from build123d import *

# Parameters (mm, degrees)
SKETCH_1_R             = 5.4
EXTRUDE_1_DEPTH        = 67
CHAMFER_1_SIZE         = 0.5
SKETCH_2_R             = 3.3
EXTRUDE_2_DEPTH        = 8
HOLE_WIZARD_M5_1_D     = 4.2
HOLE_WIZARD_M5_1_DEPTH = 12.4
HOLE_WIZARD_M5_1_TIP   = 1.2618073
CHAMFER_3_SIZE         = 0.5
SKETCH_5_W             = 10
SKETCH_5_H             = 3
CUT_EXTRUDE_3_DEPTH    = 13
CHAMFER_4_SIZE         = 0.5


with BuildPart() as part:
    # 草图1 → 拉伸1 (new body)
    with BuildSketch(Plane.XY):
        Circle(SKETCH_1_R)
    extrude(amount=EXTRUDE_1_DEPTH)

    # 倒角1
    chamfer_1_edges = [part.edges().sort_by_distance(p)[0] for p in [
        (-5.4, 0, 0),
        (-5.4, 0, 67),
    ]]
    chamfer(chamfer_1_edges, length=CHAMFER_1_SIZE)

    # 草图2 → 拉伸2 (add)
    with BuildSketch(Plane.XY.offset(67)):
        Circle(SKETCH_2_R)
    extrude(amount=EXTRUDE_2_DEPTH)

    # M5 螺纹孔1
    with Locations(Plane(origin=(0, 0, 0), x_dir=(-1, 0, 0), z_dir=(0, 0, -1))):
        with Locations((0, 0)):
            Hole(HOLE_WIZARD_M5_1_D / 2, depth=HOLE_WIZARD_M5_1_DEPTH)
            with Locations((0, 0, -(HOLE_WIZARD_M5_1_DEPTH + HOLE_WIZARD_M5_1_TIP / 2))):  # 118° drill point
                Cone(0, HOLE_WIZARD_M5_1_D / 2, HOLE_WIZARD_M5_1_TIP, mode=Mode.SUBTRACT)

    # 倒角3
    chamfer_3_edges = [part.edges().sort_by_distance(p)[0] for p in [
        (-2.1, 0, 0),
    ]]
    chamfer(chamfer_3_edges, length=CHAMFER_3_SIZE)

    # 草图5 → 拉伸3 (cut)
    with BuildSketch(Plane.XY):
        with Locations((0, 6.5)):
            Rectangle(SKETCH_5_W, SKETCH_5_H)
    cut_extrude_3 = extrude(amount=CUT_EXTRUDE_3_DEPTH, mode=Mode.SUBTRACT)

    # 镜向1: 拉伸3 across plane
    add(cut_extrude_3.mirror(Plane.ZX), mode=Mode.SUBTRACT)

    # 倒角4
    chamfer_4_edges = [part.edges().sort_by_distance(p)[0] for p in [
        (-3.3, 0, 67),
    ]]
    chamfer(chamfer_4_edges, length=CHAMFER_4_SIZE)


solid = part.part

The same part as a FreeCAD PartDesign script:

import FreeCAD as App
import Part
import Sketcher
from FreeCAD import Vector


def edges_at(feature, points):
    """Names of the edges that pass closest to the given points."""
    edges = feature.Shape.Edges
    near = lambda p: min(range(len(edges)), key=lambda i: edges[i].distToShape(Part.Vertex(*p))[0])
    return sorted({f"Edge{near(p) + 1}" for p in points})

doc = App.newDocument("Part")
body = doc.addObject("PartDesign::Body", "Body")

# Sketch on XY plane
sketch1 = body.newObject("Sketcher::SketchObject", "Sketch")
sketch1.AttachmentSupport = (doc.getObject("XY_Plane"), [""])
sketch1.MapMode = "FlatFace"
sketch1.addGeometry(Part.Circle(Vector(0, 0, 0), Vector(0, 0, 1), 5.4), False)
sketch1.addConstraint([
    Sketcher.Constraint("Coincident", 0, 3, -1, 1),
    Sketcher.Constraint("Diameter", 0, 10.8),
])
pad1 = body.newObject("PartDesign::Pad", "Pad")
pad1.Profile = sketch1
pad1.Length = 67
doc.recompute()

chamfer = body.newObject("PartDesign::Chamfer", "Chamfer")
chamfer.Base = (pad1, edges_at(pad1, [(-5.4, 0, 0), (-5.4, 0, 67)]))
chamfer.Size = 0.5

# Sketch on XY plane
sketch2 = body.newObject("Sketcher::SketchObject", "Sketch001")
sketch2.AttachmentSupport = (doc.getObject("XY_Plane"), [""])
sketch2.MapMode = "FlatFace"
sketch2.AttachmentOffset = App.Placement(Vector(0, 0, 67), App.Rotation())
sketch2.addGeometry(Part.Circle(Vector(0, 0, 0), Vector(0, 0, 1), 3.3), False)
sketch2.addConstraint([
    Sketcher.Constraint("Coincident", 0, 3, -1, 1),
    Sketcher.Constraint("Diameter", 0, 6.6),
])
pad2 = body.newObject("PartDesign::Pad", "Pad001")
pad2.Profile = sketch2
pad2.Length = 8

# Sketch on XY plane
sketch3 = body.newObject("Sketcher::SketchObject", "Sketch002")
sketch3.AttachmentSupport = (doc.getObject("XY_Plane"), [""])
sketch3.MapMode = "FlatFace"
sketch3.addGeometry(Part.Circle(Vector(0, 0, 0), Vector(0, 0, 1), 2.1), False)
sketch3.addConstraint([
    Sketcher.Constraint("Coincident", 0, 3, -1, 1),
    Sketcher.Constraint("Diameter", 0, 4.2),
])
doc.recompute()
hole = body.newObject("PartDesign::Hole", "Hole")
hole.Profile = sketch3
hole.ThreadType = "None"
hole.Diameter = 4.2
hole.DepthType = "Dimension"
hole.Depth = 12.4
hole.DrillPoint = "Angled"
hole.DrillPointAngle = 118
hole.Reversed = True
doc.recompute()

chamfer2 = body.newObject("PartDesign::Chamfer", "Chamfer001")
chamfer2.Base = (hole, edges_at(hole, [(-2.1, 0, 0)]))
chamfer2.Size = 0.5

# Sketch on XY plane
sketch4 = body.newObject("Sketcher::SketchObject", "Sketch003")
sketch4.AttachmentSupport = (doc.getObject("XY_Plane"), [""])
sketch4.MapMode = "FlatFace"
sketch4.addGeometry([
    Part.LineSegment(Vector(-5, 8, 0), Vector(-5, 5, 0)),
    Part.LineSegment(Vector(-5, 5, 0), Vector(5, 5, 0)),
    Part.LineSegment(Vector(5, 5, 0), Vector(5, 8, 0)),
    Part.LineSegment(Vector(5, 8, 0), Vector(-5, 8, 0)),
], False)
sketch4.addConstraint([
    Sketcher.Constraint("Coincident", 0, 2, 1, 1),
    Sketcher.Constraint("Coincident", 1, 2, 2, 1),
    Sketcher.Constraint("Coincident", 2, 2, 3, 1),
    Sketcher.Constraint("Coincident", 3, 2, 0, 1),
    Sketcher.Constraint("Vertical", 0),
    Sketcher.Constraint("Horizontal", 1),
    Sketcher.Constraint("Vertical", 2),
    Sketcher.Constraint("Horizontal", 3),
    Sketcher.Constraint("DistanceX", 1, 1, 1, 2, 10.0),
    Sketcher.Constraint("DistanceY", 0, 2, 0, 1, 3.0),
    Sketcher.Constraint("DistanceX", 0, 2, -1, 1, 5.0),
    Sketcher.Constraint("DistanceY", -1, 1, 0, 2, 5.0),
])
pocket1 = body.newObject("PartDesign::Pocket", "Pocket")
pocket1.Profile = sketch4
pocket1.Length = 13
pocket1.Reversed = True
doc.recompute()

mirrored = body.newObject("PartDesign::Mirrored", "Mirrored")
mirrored.Originals = [pocket1]
mirrored.MirrorPlane = (doc.getObject("XZ_Plane"), [""])
body.Tip = mirrored
doc.recompute()

chamfer3 = body.newObject("PartDesign::Chamfer", "Chamfer002")
chamfer3.Base = (mirrored, edges_at(mirrored, [(-3.3, 0, 67)]))
chamfer3.Size = 0.5

doc.recompute()
